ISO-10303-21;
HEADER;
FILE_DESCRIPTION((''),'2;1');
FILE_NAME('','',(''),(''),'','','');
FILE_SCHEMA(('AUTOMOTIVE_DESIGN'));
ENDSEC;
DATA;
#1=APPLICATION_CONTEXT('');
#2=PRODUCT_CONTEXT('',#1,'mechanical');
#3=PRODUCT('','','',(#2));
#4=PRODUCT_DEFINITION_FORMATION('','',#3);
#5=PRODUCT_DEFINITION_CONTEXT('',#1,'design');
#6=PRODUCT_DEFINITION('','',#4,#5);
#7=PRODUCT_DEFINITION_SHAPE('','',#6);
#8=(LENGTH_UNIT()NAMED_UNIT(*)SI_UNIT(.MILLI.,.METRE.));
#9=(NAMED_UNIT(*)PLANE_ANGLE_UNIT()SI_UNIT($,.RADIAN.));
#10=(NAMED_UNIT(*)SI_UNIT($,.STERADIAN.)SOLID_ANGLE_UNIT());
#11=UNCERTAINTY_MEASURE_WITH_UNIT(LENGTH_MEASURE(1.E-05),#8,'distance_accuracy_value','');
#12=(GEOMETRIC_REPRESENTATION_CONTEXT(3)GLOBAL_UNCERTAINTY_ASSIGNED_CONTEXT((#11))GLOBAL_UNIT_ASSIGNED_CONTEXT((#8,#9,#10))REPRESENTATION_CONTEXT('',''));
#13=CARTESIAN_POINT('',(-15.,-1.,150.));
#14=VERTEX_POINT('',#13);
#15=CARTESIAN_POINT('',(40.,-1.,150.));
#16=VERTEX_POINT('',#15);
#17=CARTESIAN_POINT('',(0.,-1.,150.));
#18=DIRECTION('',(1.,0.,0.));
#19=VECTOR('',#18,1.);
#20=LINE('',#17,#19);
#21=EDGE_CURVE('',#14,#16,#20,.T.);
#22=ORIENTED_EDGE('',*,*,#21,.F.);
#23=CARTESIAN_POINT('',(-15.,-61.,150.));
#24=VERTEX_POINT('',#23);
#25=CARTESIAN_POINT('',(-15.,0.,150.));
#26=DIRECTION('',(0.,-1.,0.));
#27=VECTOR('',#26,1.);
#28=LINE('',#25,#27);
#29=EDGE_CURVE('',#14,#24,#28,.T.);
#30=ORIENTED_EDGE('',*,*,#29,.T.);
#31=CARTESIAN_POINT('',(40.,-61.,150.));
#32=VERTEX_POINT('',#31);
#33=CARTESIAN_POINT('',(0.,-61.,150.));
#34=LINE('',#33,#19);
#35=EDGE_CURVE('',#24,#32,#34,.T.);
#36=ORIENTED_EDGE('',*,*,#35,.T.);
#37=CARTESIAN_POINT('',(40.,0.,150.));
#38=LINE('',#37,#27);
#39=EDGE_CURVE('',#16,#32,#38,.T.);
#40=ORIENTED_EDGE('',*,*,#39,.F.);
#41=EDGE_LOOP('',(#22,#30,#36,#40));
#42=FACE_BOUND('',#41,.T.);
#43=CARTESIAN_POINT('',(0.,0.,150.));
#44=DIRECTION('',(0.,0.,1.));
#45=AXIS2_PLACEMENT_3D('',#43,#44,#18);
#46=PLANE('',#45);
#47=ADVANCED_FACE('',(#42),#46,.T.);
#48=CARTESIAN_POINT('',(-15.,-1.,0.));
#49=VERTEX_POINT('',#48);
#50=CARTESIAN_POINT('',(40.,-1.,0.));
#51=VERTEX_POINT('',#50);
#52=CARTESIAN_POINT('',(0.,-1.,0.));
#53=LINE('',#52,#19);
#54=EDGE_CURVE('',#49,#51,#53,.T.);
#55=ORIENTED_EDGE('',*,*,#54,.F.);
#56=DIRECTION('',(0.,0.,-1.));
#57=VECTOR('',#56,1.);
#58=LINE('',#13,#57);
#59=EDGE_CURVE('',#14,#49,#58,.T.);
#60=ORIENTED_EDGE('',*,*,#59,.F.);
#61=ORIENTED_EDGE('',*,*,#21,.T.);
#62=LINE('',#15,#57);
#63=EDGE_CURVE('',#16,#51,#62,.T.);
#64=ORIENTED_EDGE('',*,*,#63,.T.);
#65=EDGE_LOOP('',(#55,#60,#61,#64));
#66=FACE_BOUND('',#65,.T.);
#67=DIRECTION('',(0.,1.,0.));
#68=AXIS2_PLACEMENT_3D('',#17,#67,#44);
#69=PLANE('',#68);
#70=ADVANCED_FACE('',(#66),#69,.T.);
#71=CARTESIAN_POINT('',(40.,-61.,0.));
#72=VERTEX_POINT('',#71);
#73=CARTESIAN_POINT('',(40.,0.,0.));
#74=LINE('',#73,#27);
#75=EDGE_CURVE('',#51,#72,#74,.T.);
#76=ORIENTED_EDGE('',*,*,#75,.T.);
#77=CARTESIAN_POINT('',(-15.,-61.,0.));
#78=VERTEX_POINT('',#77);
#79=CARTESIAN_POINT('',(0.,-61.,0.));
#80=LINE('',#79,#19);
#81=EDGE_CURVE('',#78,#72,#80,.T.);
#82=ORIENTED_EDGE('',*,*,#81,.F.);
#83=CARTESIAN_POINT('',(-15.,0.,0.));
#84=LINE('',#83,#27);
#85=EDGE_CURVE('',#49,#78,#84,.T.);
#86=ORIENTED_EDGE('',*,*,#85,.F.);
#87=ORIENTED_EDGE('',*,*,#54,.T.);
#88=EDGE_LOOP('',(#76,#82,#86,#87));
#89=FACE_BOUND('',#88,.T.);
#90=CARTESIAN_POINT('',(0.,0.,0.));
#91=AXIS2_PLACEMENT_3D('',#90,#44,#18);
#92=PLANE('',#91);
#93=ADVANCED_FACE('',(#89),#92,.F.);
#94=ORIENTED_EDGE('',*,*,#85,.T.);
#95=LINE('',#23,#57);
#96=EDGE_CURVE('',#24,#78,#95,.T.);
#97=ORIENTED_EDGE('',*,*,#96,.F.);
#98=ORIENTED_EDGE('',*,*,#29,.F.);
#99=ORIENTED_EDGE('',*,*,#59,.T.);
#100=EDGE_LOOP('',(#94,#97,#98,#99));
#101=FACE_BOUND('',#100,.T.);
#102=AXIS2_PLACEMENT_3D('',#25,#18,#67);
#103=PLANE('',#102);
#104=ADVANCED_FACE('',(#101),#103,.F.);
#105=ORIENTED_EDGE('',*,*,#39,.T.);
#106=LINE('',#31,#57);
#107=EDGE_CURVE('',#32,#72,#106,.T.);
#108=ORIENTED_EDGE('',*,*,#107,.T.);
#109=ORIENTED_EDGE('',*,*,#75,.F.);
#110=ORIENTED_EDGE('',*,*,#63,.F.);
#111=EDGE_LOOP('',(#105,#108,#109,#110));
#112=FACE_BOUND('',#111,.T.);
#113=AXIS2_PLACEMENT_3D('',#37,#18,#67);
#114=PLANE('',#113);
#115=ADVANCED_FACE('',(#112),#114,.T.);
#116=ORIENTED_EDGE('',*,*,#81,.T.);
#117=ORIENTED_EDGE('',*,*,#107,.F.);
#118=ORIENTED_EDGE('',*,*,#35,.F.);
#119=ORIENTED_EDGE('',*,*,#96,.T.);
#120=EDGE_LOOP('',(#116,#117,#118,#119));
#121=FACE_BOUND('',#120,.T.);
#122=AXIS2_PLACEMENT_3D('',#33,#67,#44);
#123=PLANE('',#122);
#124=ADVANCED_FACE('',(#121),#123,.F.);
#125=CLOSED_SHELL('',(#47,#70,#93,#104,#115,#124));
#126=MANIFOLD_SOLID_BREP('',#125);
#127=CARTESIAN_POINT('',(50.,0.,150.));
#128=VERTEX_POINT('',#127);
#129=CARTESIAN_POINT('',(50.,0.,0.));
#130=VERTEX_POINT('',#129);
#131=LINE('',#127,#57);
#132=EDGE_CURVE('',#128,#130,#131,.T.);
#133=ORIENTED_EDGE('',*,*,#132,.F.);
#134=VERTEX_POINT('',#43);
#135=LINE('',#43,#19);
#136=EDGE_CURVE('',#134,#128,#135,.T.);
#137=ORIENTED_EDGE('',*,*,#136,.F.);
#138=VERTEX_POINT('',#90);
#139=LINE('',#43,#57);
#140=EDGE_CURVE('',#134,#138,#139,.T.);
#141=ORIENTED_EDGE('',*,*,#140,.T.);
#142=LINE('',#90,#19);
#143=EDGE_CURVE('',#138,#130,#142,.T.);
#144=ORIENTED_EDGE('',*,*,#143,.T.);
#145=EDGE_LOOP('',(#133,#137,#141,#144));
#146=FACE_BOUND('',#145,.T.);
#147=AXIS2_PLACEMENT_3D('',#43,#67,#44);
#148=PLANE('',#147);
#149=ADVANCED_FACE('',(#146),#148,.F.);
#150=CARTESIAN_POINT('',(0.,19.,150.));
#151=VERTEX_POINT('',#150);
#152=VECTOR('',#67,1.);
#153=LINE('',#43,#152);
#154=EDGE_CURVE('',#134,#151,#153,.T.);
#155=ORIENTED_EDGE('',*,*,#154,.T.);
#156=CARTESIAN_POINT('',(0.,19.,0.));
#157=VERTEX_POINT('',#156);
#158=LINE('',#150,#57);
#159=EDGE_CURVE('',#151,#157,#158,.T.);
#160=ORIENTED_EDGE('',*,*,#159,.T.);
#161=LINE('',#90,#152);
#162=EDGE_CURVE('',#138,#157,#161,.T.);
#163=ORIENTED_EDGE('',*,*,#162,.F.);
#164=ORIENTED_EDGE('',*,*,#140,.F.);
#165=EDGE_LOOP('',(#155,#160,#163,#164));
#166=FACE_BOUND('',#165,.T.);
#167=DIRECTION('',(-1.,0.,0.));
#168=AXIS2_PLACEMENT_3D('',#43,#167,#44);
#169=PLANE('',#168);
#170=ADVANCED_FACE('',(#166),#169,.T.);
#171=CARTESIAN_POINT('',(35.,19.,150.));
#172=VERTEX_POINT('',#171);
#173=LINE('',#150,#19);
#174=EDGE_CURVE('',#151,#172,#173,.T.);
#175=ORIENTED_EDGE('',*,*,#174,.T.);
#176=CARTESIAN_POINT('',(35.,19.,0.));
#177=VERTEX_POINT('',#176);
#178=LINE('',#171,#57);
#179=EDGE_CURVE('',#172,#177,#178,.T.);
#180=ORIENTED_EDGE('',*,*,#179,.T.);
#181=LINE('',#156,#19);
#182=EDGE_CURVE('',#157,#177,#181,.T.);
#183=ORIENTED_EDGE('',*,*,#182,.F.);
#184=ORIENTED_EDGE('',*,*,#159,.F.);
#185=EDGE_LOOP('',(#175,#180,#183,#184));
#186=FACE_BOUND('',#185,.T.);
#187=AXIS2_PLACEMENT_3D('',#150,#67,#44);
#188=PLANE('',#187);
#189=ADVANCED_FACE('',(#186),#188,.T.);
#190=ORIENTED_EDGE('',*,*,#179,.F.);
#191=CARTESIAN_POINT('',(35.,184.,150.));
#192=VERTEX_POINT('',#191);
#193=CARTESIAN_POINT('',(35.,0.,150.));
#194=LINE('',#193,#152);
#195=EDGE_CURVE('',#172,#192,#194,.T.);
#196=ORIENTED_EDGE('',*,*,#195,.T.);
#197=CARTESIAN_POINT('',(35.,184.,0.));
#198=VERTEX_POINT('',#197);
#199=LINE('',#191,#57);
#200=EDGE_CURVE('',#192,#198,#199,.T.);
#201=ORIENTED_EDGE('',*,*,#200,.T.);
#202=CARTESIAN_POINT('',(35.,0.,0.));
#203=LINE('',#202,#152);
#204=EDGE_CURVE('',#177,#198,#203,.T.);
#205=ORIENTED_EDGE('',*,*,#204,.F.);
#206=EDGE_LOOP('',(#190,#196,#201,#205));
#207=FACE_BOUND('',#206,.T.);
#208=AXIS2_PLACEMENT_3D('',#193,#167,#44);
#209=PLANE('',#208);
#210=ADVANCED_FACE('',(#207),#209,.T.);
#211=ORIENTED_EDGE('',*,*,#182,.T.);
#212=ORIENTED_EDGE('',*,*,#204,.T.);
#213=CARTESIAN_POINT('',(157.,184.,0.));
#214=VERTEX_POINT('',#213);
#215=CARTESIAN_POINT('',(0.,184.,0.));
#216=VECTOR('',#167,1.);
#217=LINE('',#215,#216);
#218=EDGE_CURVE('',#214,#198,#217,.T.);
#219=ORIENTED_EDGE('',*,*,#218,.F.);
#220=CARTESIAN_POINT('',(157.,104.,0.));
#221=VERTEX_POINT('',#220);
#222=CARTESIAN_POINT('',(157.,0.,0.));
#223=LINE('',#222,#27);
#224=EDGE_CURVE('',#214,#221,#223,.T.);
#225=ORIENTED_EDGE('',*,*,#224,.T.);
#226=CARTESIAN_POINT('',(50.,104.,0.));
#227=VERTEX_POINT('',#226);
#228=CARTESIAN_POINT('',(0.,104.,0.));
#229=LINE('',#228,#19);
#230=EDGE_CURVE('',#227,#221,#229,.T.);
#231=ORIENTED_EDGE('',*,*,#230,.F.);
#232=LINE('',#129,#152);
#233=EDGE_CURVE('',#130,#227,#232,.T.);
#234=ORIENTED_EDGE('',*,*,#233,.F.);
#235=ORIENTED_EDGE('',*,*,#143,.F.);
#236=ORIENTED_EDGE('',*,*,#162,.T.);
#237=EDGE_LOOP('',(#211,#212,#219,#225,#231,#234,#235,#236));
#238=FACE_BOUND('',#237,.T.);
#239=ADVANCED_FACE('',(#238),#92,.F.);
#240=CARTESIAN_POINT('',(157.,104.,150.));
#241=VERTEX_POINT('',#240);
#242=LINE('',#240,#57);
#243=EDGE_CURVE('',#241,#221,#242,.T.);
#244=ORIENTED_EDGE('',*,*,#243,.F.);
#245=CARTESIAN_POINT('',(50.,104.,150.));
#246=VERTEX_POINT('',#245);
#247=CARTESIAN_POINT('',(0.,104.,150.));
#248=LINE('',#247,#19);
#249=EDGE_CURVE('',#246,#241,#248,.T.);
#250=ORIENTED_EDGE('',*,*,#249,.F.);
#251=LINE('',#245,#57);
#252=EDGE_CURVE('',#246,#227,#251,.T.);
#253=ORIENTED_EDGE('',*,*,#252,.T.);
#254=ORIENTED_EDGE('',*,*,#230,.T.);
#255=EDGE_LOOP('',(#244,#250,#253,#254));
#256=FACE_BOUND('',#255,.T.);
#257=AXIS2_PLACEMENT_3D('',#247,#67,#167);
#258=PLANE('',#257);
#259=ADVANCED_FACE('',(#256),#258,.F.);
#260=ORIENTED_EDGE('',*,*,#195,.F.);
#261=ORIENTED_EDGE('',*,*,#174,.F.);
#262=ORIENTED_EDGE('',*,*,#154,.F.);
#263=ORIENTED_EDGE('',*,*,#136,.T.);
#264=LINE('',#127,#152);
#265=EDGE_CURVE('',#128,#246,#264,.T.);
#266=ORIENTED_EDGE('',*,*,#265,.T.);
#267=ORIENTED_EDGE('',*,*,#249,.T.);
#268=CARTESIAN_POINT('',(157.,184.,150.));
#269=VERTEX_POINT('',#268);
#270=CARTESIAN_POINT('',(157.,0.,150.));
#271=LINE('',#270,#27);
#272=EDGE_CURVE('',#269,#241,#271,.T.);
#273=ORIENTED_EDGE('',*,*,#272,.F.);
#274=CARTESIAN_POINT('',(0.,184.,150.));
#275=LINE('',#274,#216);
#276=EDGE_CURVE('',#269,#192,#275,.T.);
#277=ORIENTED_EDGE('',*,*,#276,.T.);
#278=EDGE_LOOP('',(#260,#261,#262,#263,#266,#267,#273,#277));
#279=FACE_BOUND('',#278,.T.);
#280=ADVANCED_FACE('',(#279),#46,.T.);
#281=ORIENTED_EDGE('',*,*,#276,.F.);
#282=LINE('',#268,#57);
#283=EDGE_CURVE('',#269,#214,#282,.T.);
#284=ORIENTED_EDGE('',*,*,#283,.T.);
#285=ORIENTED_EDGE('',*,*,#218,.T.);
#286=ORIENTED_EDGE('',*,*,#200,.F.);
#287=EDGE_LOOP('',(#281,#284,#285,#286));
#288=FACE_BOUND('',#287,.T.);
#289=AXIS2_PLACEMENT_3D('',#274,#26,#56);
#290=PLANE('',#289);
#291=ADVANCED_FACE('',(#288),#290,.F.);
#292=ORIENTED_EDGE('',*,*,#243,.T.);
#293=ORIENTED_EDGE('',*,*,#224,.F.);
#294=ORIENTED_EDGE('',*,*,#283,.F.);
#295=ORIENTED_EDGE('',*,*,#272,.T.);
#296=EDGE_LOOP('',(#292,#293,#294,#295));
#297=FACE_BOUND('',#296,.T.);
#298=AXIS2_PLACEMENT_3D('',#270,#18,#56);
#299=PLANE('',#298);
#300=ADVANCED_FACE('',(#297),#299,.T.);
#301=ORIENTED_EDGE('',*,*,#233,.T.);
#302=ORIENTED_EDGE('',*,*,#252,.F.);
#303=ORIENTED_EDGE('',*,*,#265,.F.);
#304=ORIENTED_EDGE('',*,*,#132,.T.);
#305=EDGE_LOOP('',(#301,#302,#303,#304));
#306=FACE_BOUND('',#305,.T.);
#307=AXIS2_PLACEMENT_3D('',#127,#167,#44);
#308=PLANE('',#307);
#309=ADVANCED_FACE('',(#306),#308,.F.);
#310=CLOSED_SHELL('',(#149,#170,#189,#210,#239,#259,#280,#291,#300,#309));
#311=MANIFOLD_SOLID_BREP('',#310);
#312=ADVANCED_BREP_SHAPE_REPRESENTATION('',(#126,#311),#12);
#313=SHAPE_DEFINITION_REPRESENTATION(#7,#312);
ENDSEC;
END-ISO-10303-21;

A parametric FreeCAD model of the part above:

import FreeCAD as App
import Part
import Sketcher


def add_polygon(sketch, points):
    """Adds a closed chain of lines whose ends are joined by coincident constraints."""
    first, n = sketch.GeometryCount, len(points)
    for a, b in zip(points, points[1:] + points[:1]):
        sketch.addGeometry(Part.LineSegment(App.Vector(*a, 0), App.Vector(*b, 0)), False)
    for i in range(n):
        sketch.addConstraint(Sketcher.Constraint("Coincident", first + i, 2, first + (i + 1) % n, 1))

doc = App.newDocument("Part")
body = doc.addObject("PartDesign::Body", "Body")
body.AllowCompound = True

sketch1 = body.newObject("Sketcher::SketchObject", "Sketch")
sketch1.AttachmentSupport = (doc.getObject("XY_Plane"), [""])
sketch1.MapMode = "FlatFace"
add_polygon(sketch1, [(0, 19), (0, 0), (50, 0), (50, 104), (157, 104), (157, 184), (35, 184), (35, 19)])
add_polygon(sketch1, [(-15, -1), (-15, -61), (40, -61), (40, -1)])
sketch1.addConstraint(Sketcher.Constraint("Vertical", 0))
sketch1.addConstraint(Sketcher.Constraint("Horizontal", 1))
sketch1.addConstraint(Sketcher.Constraint("Vertical", 2))
sketch1.addConstraint(Sketcher.Constraint("Horizontal", 3))
sketch1.addConstraint(Sketcher.Constraint("Vertical", 4))
sketch1.addConstraint(Sketcher.Constraint("Horizontal", 5))
sketch1.addConstraint(Sketcher.Constraint("Vertical", 6))
sketch1.addConstraint(Sketcher.Constraint("Horizontal", 7))
sketch1.addConstraint(Sketcher.Constraint("Vertical", 8))
sketch1.addConstraint(Sketcher.Constraint("Horizontal", 9))
sketch1.addConstraint(Sketcher.Constraint("Vertical", 10))
sketch1.addConstraint(Sketcher.Constraint("Horizontal", 11))
sketch1.addConstraint(Sketcher.Constraint("Coincident", 0, 2, -1, 1))
sketch1.addConstraint(Sketcher.Constraint("DistanceX", 1, 1, 1, 2, 50.0))
sketch1.addConstraint(Sketcher.Constraint("DistanceX", 3, 1, 3, 2, 107.0))
sketch1.addConstraint(Sketcher.Constraint("DistanceX", 5, 2, 5, 1, 122.0))
sketch1.addConstraint(Sketcher.Constraint("DistanceX", 9, 1, 9, 2, 55.0))
sketch1.addConstraint(Sketcher.Constraint("DistanceY", 0, 2, 0, 1, 19.0))
sketch1.addConstraint(Sketcher.Constraint("DistanceY", 2, 1, 2, 2, 104.0))
sketch1.addConstraint(Sketcher.Constraint("DistanceY", 4, 1, 4, 2, 80.0))
sketch1.addConstraint(Sketcher.Constraint("DistanceY", 8, 2, 8, 1, 60.0))
sketch1.addConstraint(Sketcher.Constraint("DistanceX", 8, 2, -1, 1, 15.0))
sketch1.addConstraint(Sketcher.Constraint("DistanceY", 8, 2, -1, 1, 61.0))
pad1 = body.newObject("PartDesign::Pad", "Pad")
pad1.Profile = sketch1
pad1.Length = 150

doc.recompute()
